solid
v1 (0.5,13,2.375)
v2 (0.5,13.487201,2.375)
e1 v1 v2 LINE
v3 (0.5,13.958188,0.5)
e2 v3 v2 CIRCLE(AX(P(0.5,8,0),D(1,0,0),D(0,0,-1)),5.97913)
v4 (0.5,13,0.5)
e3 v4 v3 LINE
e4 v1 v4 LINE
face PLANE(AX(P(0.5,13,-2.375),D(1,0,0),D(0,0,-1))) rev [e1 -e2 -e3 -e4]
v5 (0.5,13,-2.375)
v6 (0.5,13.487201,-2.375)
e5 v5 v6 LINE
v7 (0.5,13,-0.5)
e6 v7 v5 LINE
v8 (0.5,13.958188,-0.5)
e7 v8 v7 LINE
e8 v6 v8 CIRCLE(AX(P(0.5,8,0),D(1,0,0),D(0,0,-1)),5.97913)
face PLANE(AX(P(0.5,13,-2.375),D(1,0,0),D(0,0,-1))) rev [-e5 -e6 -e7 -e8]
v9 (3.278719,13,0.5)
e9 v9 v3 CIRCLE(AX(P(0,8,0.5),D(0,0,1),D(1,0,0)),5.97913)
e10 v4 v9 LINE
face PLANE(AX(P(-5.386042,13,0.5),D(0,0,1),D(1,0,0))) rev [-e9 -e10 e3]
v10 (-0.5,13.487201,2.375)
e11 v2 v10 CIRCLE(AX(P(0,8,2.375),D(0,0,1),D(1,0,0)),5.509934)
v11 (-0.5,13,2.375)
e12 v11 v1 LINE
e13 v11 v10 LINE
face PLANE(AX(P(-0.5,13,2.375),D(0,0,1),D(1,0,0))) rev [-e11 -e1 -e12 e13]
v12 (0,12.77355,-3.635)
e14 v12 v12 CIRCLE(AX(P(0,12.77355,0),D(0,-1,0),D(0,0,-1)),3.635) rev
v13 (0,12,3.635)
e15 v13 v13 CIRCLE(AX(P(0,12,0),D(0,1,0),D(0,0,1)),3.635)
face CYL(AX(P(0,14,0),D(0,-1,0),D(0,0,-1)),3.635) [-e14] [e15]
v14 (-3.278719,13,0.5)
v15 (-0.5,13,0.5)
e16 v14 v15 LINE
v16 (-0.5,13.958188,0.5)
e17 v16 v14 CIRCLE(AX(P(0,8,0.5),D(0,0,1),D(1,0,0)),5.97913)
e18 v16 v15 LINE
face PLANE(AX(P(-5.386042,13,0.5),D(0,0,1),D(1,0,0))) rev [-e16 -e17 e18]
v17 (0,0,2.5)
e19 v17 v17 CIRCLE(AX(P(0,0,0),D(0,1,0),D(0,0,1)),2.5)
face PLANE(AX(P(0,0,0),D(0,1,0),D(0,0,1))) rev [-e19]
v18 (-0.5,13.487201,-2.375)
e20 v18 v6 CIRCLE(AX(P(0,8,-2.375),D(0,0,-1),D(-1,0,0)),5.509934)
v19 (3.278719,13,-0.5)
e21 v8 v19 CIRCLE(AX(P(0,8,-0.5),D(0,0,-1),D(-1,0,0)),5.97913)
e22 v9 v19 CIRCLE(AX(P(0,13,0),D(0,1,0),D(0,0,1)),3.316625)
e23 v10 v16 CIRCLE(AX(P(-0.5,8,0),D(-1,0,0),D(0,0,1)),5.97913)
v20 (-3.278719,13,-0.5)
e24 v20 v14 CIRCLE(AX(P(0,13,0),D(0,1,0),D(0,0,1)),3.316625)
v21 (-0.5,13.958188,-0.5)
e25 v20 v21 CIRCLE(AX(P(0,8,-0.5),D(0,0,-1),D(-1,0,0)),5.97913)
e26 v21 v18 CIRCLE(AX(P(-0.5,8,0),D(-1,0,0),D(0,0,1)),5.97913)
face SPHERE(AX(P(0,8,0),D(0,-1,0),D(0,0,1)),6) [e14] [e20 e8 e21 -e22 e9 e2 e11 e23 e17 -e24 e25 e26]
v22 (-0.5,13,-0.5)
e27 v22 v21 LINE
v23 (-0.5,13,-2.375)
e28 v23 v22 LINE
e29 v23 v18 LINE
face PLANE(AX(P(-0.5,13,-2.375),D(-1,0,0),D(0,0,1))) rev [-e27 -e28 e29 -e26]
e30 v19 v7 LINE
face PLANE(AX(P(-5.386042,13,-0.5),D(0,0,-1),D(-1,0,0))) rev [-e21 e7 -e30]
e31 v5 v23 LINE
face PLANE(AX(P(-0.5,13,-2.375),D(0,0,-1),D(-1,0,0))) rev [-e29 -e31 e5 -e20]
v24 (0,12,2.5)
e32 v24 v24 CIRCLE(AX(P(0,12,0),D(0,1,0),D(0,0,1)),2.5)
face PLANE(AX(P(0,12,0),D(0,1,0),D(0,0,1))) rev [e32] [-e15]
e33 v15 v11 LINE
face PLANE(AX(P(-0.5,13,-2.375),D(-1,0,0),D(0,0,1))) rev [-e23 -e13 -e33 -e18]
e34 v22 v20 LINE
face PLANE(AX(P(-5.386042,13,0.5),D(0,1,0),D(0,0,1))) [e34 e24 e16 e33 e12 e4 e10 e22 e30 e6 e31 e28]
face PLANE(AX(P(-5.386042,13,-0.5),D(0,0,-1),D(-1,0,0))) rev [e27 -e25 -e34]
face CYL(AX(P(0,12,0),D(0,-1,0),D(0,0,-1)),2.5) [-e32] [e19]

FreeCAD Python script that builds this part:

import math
import FreeCAD as App
import Part
import Sketcher
Q = App.Units.Quantity

doc = App.newDocument("Part")
body = doc.addObject("PartDesign::Body", "Body")

# Sketch on XZ plane
sketch1 = body.newObject("Sketcher::SketchObject", "Sketch")
sketch1.AttachmentSupport = (doc.getObject("XZ_Plane"), [""])
sketch1.MapMode = "FlatFace"
sketch1.addGeometry(Part.Circle(App.Vector(0, 0, 0), App.Vector(0, 0, 1), 2.5), False)
sketch1.addConstraint(Sketcher.Constraint("Coincident", 0, 3, -1, 1))
sketch1.addConstraint(Sketcher.Constraint("Diameter", 0, Q("5 mm")))
pad1 = body.newObject("PartDesign::Pad", "Pad")
pad1.Profile = sketch1
pad1.Length = 12
pad1.Reversed = True

# Sketch on XZ plane
sketch2 = body.newObject("Sketcher::SketchObject", "Sketch001")
sketch2.AttachmentSupport = (doc.getObject("XZ_Plane"), [""])
sketch2.MapMode = "FlatFace"
sketch2.AttachmentOffset = App.Placement(App.Vector(0, 0, -12), App.Rotation())
sketch2.addGeometry(Part.Circle(App.Vector(0, 0, 0), App.Vector(0, 0, 1), 3.6), False)
sketch2.addConstraint(Sketcher.Constraint("Coincident", 0, 3, -1, 1))
sketch2.addConstraint(Sketcher.Constraint("Diameter", 0, Q("7.27 mm")))
pad2 = body.newObject("PartDesign::Pad", "Pad001")
pad2.Profile = sketch2
pad2.Length = 2
pad2.Reversed = True

# Sketch on XZ plane
sketch3 = body.newObject("Sketcher::SketchObject", "Sketch002")
sketch3.AttachmentSupport = (doc.getObject("XZ_Plane"), [""])
sketch3.MapMode = "FlatFace"
sketch3.AttachmentOffset = App.Placement(App.Vector(0, 0, -14), App.Rotation())
sketch3.addGeometry(Part.LineSegment(App.Vector(5.4, 0.5, 0), App.Vector(5.4, -0.5, 0)), False)
sketch3.addGeometry(Part.LineSegment(App.Vector(5.4, -0.5, 0), App.Vector(-5.4, -0.5, 0)), False)
sketch3.addGeometry(Part.LineSegment(App.Vector(-5.4, -0.5, 0), App.Vector(-5.4, 0.5, 0)), False)
sketch3.addGeometry(Part.LineSegment(App.Vector(-5.4, 0.5, 0), App.Vector(5.4, 0.5, 0)), False)
sketch3.addConstraint(Sketcher.Constraint("Coincident", 0, 2, 1, 1))
sketch3.addConstraint(Sketcher.Constraint("Coincident", 1, 2, 2, 1))
sketch3.addConstraint(Sketcher.Constraint("Coincident", 2, 2, 3, 1))
sketch3.addConstraint(Sketcher.Constraint("Coincident", 3, 2, 0, 1))
sketch3.addConstraint(Sketcher.Constraint("Vertical", 0))
sketch3.addConstraint(Sketcher.Constraint("Horizontal", 1))
sketch3.addConstraint(Sketcher.Constraint("Vertical", 2))
sketch3.addConstraint(Sketcher.Constraint("Horizontal", 3))
sketch3.addConstraint(Sketcher.Constraint("Symmetric", 0, 2, 2, 2, -1, 1))
sketch3.addConstraint(Sketcher.Constraint("DistanceY", 0, 2, 0, 1, Q("1 mm")))
sketch3.addConstraint(Sketcher.Constraint("DistanceX", 1, 2, 1, 1, Q("10.772085 mm")))
pocket1 = body.newObject("PartDesign::Pocket", "Pocket")
pocket1.Profile = sketch3
pocket1.Length = 1
pocket1.Reversed = True

# Sketch on XZ plane
sketch4 = body.newObject("Sketcher::SketchObject", "Sketch003")
sketch4.AttachmentSupport = (doc.getObject("XZ_Plane"), [""])
sketch4.MapMode = "FlatFace"
sketch4.AttachmentOffset = App.Placement(App.Vector(0, 0, -14), App.Rotation())
sketch4.addGeometry(Part.LineSegment(App.Vector(0.5, 2.4, 0), App.Vector(0.5, -2.4, 0)), False)
sketch4.addGeometry(Part.LineSegment(App.Vector(0.5, -2.4, 0), App.Vector(-0.5, -2.4, 0)), False)
sketch4.addGeometry(Part.LineSegment(App.Vector(-0.5, -2.4, 0), App.Vector(-0.5, 2.4, 0)), False)
sketch4.addGeometry(Part.LineSegment(App.Vector(-0.5, 2.4, 0), App.Vector(0.5, 2.4, 0)), False)
sketch4.addConstraint(Sketcher.Constraint("Coincident", 0, 2, 1, 1))
sketch4.addConstraint(Sketcher.Constraint("Coincident", 1, 2, 2, 1))
sketch4.addConstraint(Sketcher.Constraint("Coincident", 2, 2, 3, 1))
sketch4.addConstraint(Sketcher.Constraint("Coincident", 3, 2, 0, 1))
sketch4.addConstraint(Sketcher.Constraint("Vertical", 0))
sketch4.addConstraint(Sketcher.Constraint("Horizontal", 1))
sketch4.addConstraint(Sketcher.Constraint("Vertical", 2))
sketch4.addConstraint(Sketcher.Constraint("Horizontal", 3))
sketch4.addConstraint(Sketcher.Constraint("Symmetric", 0, 2, 2, 2, -1, 1))
sketch4.addConstraint(Sketcher.Constraint("DistanceX", 1, 2, 1, 1, Q("1 mm")))
sketch4.addConstraint(Sketcher.Constraint("DistanceY", 0, 2, 0, 1, Q("4.75 mm")))
pocket2 = body.newObject("PartDesign::Pocket", "Pocket001")
pocket2.Profile = sketch4
pocket2.Length = 1
pocket2.Reversed = True

# Sketch on YZ plane
sketch5 = body.newObject("Sketcher::SketchObject", "Sketch004")
sketch5.AttachmentSupport = (doc.getObject("YZ_Plane"), [""])
sketch5.MapMode = "FlatFace"
sketch5.addGeometry(Part.LineSegment(App.Vector(14.7, 0, 0), App.Vector(14.7, 4.2, 0)), False)
sketch5.addGeometry(Part.LineSegment(App.Vector(14.7, 4.2, 0), App.Vector(12.3, 4.2, 0)), False)
sketch5.addGeometry(Part.ArcOfCircle(Part.Circle(App.Vector(8, 0, 0), App.Vector(0, 0, 1), 6), math.radians(0), math.radians(45)), False)
sketch5.addGeometry(Part.LineSegment(App.Vector(14, 0, 0), App.Vector(14.7, 0, 0)), False)
sketch5.addConstraint(Sketcher.Constraint("Coincident", 0, 2, 1, 1))
sketch5.addConstraint(Sketcher.Constraint("Coincident", 1, 2, 2, 2))
sketch5.addConstraint(Sketcher.Constraint("Coincident", 2, 1, 3, 1))
sketch5.addConstraint(Sketcher.Constraint("Coincident", 3, 2, 0, 1))
sketch5.addConstraint(Sketcher.Constraint("Vertical", 0))
sketch5.addConstraint(Sketcher.Constraint("Horizontal", 1))
sketch5.addConstraint(Sketcher.Constraint("Horizontal", 3))
sketch5.addConstraint(Sketcher.Constraint("PointOnObject", 2, 3, -1))
sketch5.addConstraint(Sketcher.Constraint("PointOnObject", 2, 1, -1))
sketch5.addConstraint(Sketcher.Constraint("Radius", 2, Q("6 mm")))
sketch5.addConstraint(Sketcher.Constraint("DistanceX", -1, 1, 2, 3, Q("8 mm")))
sketch5.addConstraint(Sketcher.Constraint("DistanceX", 3, 1, 3, 2, Q("0.653449 mm")))
sketch5.addConstraint(Sketcher.Constraint("DistanceX", 1, 2, 1, 1, Q("2.395935 mm")))
groove = body.newObject("PartDesign::Groove", "Groove")
groove.Profile = sketch5
groove.ReferenceAxis = (sketch5, ["H_Axis"])
groove.Angle = 360

doc.recompute()
